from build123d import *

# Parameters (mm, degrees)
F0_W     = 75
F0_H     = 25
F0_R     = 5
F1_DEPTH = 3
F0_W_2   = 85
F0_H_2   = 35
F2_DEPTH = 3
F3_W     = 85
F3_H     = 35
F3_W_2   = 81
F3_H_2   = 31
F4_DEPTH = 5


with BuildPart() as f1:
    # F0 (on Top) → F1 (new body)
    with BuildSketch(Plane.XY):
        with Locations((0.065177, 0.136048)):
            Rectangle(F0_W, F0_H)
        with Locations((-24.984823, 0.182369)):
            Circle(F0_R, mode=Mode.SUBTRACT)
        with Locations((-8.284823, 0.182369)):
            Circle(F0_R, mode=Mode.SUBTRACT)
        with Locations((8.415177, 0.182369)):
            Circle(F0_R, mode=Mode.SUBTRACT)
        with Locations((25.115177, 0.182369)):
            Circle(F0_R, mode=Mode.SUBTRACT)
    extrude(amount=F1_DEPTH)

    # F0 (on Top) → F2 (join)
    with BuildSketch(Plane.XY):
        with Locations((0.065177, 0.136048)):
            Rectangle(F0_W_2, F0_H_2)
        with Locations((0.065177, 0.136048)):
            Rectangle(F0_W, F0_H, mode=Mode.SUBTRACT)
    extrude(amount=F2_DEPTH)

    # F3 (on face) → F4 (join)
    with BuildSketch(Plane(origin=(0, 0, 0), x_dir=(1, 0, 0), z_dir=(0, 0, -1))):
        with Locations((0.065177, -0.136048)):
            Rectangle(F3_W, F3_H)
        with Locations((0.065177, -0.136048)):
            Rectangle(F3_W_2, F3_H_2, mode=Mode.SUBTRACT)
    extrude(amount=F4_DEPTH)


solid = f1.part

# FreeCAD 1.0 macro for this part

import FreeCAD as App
import Part
import Sketcher
from FreeCAD import Vector


def add_polygon(sketch, points):
    """Adds a closed chain of lines whose ends are joined by coincident constraints."""
    first, n = sketch.GeometryCount, len(points)
    for a, b in zip(points, points[1:] + points[:1]):
        sketch.addGeometry(Part.LineSegment(App.Vector(*a, 0), App.Vector(*b, 0)), False)
    for i in range(n):
        sketch.addConstraint(Sketcher.Constraint("Coincident", first + i, 2, first + (i + 1) % n, 1))

doc = App.newDocument("Part")
body = doc.addObject("PartDesign::Body", "Body")

sketch1 = body.newObject("Sketcher::SketchObject", "Sketch")
sketch1.AttachmentSupport = (doc.getObject("XY_Plane"), [""])
sketch1.MapMode = "FlatFace"
add_polygon(sketch1, [(-37, 13), (-37, -12), (38, -12), (38, 13)])
sketch1.addGeometry(Part.Circle(Vector(-25, 0, 0), Vector(0, 0, 1), 5), False)
sketch1.addGeometry(Part.Circle(Vector(-8, 0, 0), Vector(0, 0, 1), 5), False)
sketch1.addGeometry(Part.Circle(Vector(8, 0, 0), Vector(0, 0, 1), 5), False)
sketch1.addGeometry(Part.Circle(Vector(25, 0, 0), Vector(0, 0, 1), 5), False)
sketch1.addConstraint(Sketcher.Constraint("Vertical", 0))
sketch1.addConstraint(Sketcher.Constraint("Horizontal", 1))
sketch1.addConstraint(Sketcher.Constraint("Vertical", 2))
sketch1.addConstraint(Sketcher.Constraint("Horizontal", 3))
sketch1.addConstraint(Sketcher.Constraint("Equal", 4, 5))
sketch1.addConstraint(Sketcher.Constraint("Equal", 5, 6))
sketch1.addConstraint(Sketcher.Constraint("Equal", 6, 7))
sketch1.addConstraint(Sketcher.Constraint("Horizontal", 4, 3, 5, 3))
sketch1.addConstraint(Sketcher.Constraint("Horizontal", 5, 3, 6, 3))
sketch1.addConstraint(Sketcher.Constraint("Horizontal", 6, 3, 7, 3))
sketch1.addConstraint(Sketcher.Constraint("Diameter", 4, 10.0))
sketch1.addConstraint(Sketcher.Constraint("DistanceX", 1, 1, 1, 2, 75.0))
sketch1.addConstraint(Sketcher.Constraint("DistanceY", 0, 2, 0, 1, 25.0))
sketch1.addConstraint(Sketcher.Constraint("DistanceX", 4, 3, 5, 3, 16.7))
sketch1.addConstraint(Sketcher.Constraint("DistanceX", 5, 3, 6, 3, 16.7))
sketch1.addConstraint(Sketcher.Constraint("DistanceX", 6, 3, 7, 3, 16.7))
sketch1.addConstraint(Sketcher.Constraint("DistanceX", 0, 2, 4, 3, 12.45))
sketch1.addConstraint(Sketcher.Constraint("DistanceY", -1, 1, 4, 3, 0.182369))
sketch1.addConstraint(Sketcher.Constraint("DistanceY", 0, 2, -1, 1, 12.363952))
sketch1.addConstraint(Sketcher.Constraint("DistanceX", 4, 3, -1, 1, 24.984823))
pad1 = body.newObject("PartDesign::Pad", "Pad")
pad1.Profile = sketch1
pad1.Length = 3

sketch2 = body.newObject("Sketcher::SketchObject", "Sketch001")
sketch2.AttachmentSupport = (doc.getObject("XY_Plane"), [""])
sketch2.MapMode = "FlatFace"
add_polygon(sketch2, [(-42, 18), (-42, -17), (43, -17), (43, 18)])
add_polygon(sketch2, [(38, -12), (-37, -12), (-37, 13), (38, 13)])
sketch2.addConstraint(Sketcher.Constraint("Vertical", 0))
sketch2.addConstraint(Sketcher.Constraint("Horizontal", 1))
sketch2.addConstraint(Sketcher.Constraint("Vertical", 2))
sketch2.addConstraint(Sketcher.Constraint("Horizontal", 3))
sketch2.addConstraint(Sketcher.Constraint("Horizontal", 4))
sketch2.addConstraint(Sketcher.Constraint("Vertical", 5))
sketch2.addConstraint(Sketcher.Constraint("Horizontal", 6))
sketch2.addConstraint(Sketcher.Constraint("Vertical", 7))
sketch2.addConstraint(Sketcher.Constraint("DistanceX", 1, 1, 1, 2, 85.0))
sketch2.addConstraint(Sketcher.Constraint("DistanceX", 4, 2, 4, 1, 75.0))
sketch2.addConstraint(Sketcher.Constraint("DistanceY", 0, 2, 0, 1, 35.0))
sketch2.addConstraint(Sketcher.Constraint("DistanceY", 5, 1, 5, 2, 25.0))
sketch2.addConstraint(Sketcher.Constraint("DistanceX", 0, 2, 4, 2, 5.0))
sketch2.addConstraint(Sketcher.Constraint("DistanceY", 0, 2, 4, 2, 5.0))
sketch2.addConstraint(Sketcher.Constraint("DistanceY", 4, 2, -1, 1, 12.363952))
sketch2.addConstraint(Sketcher.Constraint("DistanceX", 0, 2, -1, 1, 42.434823))
pad2 = body.newObject("PartDesign::Pad", "Pad001")
pad2.Profile = sketch2
pad2.Length = 3

sketch3 = body.newObject("Sketcher::SketchObject", "Sketch002")
sketch3.AttachmentSupport = (doc.getObject("XY_Plane"), [""])
sketch3.MapMode = "FlatFace"
add_polygon(sketch3, [(-42, -17), (-42, 18), (43, 18), (43, -17)])
add_polygon(sketch3, [(41, 16), (-40, 16), (-40, -15), (41, -15)])
sketch3.addConstraint(Sketcher.Constraint("Vertical", 0))
sketch3.addConstraint(Sketcher.Constraint("Horizontal", 1))
sketch3.addConstraint(Sketcher.Constraint("Vertical", 2))
sketch3.addConstraint(Sketcher.Constraint("Horizontal", 3))
sketch3.addConstraint(Sketcher.Constraint("Horizontal", 4))
sketch3.addConstraint(Sketcher.Constraint("Vertical", 5))
sketch3.addConstraint(Sketcher.Constraint("Horizontal", 6))
sketch3.addConstraint(Sketcher.Constraint("Vertical", 7))
sketch3.addConstraint(Sketcher.Constraint("DistanceX", 1, 1, 1, 2, 85.0))
sketch3.addConstraint(Sketcher.Constraint("DistanceX", 4, 2, 4, 1, 81.0))
sketch3.addConstraint(Sketcher.Constraint("DistanceY", 0, 1, 0, 2, 35.0))
sketch3.addConstraint(Sketcher.Constraint("DistanceY", 5, 2, 5, 1, 31.0))
sketch3.addConstraint(Sketcher.Constraint("DistanceX", 0, 2, 4, 2, 2.0))
sketch3.addConstraint(Sketcher.Constraint("DistanceY", 4, 2, 0, 2, 2.0))
sketch3.addConstraint(Sketcher.Constraint("DistanceY", -1, 1, 4, 2, 15.636048))
sketch3.addConstraint(Sketcher.Constraint("DistanceX", 0, 2, -1, 1, 42.434823))
pad3 = body.newObject("PartDesign::Pad", "Pad002")
pad3.Profile = sketch3
pad3.Length = 5
pad3.Reversed = True

doc.recompute()
